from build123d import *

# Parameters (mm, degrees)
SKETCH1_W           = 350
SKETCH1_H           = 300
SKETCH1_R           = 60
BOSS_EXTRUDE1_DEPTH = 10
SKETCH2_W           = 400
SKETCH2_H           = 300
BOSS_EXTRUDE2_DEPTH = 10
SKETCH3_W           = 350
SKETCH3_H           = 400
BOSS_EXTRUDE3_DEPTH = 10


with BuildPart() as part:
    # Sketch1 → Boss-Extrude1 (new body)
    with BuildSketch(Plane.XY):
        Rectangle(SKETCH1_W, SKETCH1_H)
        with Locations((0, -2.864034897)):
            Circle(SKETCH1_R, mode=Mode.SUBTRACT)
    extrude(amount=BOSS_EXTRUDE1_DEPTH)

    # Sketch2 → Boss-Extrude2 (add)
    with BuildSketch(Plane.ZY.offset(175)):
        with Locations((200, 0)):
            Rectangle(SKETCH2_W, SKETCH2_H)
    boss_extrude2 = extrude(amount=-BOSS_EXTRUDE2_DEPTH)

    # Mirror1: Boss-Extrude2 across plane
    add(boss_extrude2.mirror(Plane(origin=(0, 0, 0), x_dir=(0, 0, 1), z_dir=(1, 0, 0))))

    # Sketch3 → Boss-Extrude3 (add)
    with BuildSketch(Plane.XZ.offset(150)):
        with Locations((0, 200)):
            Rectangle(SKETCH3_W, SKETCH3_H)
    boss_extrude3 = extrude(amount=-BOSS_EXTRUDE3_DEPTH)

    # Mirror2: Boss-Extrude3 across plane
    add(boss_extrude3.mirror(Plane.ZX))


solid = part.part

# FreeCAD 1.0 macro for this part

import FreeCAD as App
import Part
import Sketcher

V = App.Vector
Q = App.Units.Quantity

doc = App.newDocument("Part")
body = doc.addObject("PartDesign::Body", "Body")

sketch1 = body.newObject("Sketcher::SketchObject", "Sketch")
sketch1.AttachmentSupport = (doc.getObject("XY_Plane"), [""])
sketch1.MapMode = "FlatFace"
sketch1.addGeometry(Part.LineSegment(V(-175, 150, 0), V(-175, -150, 0)), False)
sketch1.addGeometry(Part.LineSegment(V(-175, -150, 0), V(175, -150, 0)), False)
sketch1.addGeometry(Part.LineSegment(V(175, -150, 0), V(175, 150, 0)), False)
sketch1.addGeometry(Part.LineSegment(V(175, 150, 0), V(-175, 150, 0)), False)
sketch1.addGeometry(Part.Circle(V(0, -2.864035, 0), V(0, 0, 1), 60), False)
sketch1.addConstraint(Sketcher.Constraint("Coincident", 0, 2, 1, 1))
sketch1.addConstraint(Sketcher.Constraint("Coincident", 1, 2, 2, 1))
sketch1.addConstraint(Sketcher.Constraint("Coincident", 2, 2, 3, 1))
sketch1.addConstraint(Sketcher.Constraint("Coincident", 3, 2, 0, 1))
sketch1.addConstraint(Sketcher.Constraint("Vertical", 0))
sketch1.addConstraint(Sketcher.Constraint("Horizontal", 1))
sketch1.addConstraint(Sketcher.Constraint("Vertical", 2))
sketch1.addConstraint(Sketcher.Constraint("Horizontal", 3))
sketch1.addConstraint(Sketcher.Constraint("Symmetric", 0, 2, 2, 2, -1, 1))
sketch1.addConstraint(Sketcher.Constraint("PointOnObject", 4, 3, -2))
sketch1.addConstraint(Sketcher.Constraint("Diameter", 4, Q("120 mm")))
sketch1.addConstraint(Sketcher.Constraint("DistanceX", 1, 1, 1, 2, Q("350 mm")))
sketch1.addConstraint(Sketcher.Constraint("DistanceY", 0, 2, 0, 1, Q("300 mm")))
sketch1.addConstraint(Sketcher.Constraint("DistanceY", 4, 3, -1, 1, Q("2.864035 mm")))
pad1 = body.newObject("PartDesign::Pad", "Pad")
pad1.Profile = sketch1
pad1.Length = 10

sketch2 = body.newObject("Sketcher::SketchObject", "Sketch001")
sketch2.AttachmentSupport = (doc.getObject("YZ_Plane"), [""])
sketch2.MapMode = "FlatFace"
sketch2.AttachmentOffset = App.Placement(V(0, 0, -175), App.Rotation())
sketch2.addGeometry(Part.LineSegment(V(150, 0, 0), V(-150, 0, 0)), False)
sketch2.addGeometry(Part.LineSegment(V(-150, 0, 0), V(-150, 400, 0)), False)
sketch2.addGeometry(Part.LineSegment(V(-150, 400, 0), V(150, 400, 0)), False)
sketch2.addGeometry(Part.LineSegment(V(150, 400, 0), V(150, 0, 0)), False)
sketch2.addConstraint(Sketcher.Constraint("Coincident", 0, 2, 1, 1))
sketch2.addConstraint(Sketcher.Constraint("Coincident", 1, 2, 2, 1))
sketch2.addConstraint(Sketcher.Constraint("Coincident", 2, 2, 3, 1))
sketch2.addConstraint(Sketcher.Constraint("Coincident", 3, 2, 0, 1))
sketch2.addConstraint(Sketcher.Constraint("Horizontal", 0))
sketch2.addConstraint(Sketcher.Constraint("Vertical", 1))
sketch2.addConstraint(Sketcher.Constraint("Horizontal", 2))
sketch2.addConstraint(Sketcher.Constraint("Vertical", 3))
sketch2.addConstraint(Sketcher.Constraint("Symmetric", 0, 2, 3, 2, -1, 1))
sketch2.addConstraint(Sketcher.Constraint("DistanceX", 0, 2, 0, 1, Q("300 mm")))
sketch2.addConstraint(Sketcher.Constraint("DistanceY", 1, 1, 1, 2, Q("400 mm")))
pad2 = body.newObject("PartDesign::Pad", "Pad001")
pad2.Profile = sketch2
pad2.Length = 10
doc.recompute()

mirrored = body.newObject("PartDesign::Mirrored", "Mirrored")
mirrored.Originals = [pad2]
mirrored.MirrorPlane = (doc.getObject("YZ_Plane"), [""])
body.Tip = mirrored

sketch3 = body.newObject("Sketcher::SketchObject", "Sketch002")
sketch3.AttachmentSupport = (doc.getObject("XZ_Plane"), [""])
sketch3.MapMode = "FlatFace"
sketch3.AttachmentOffset = App.Placement(V(0, 0, 150), App.Rotation())
sketch3.addGeometry(Part.LineSegment(V(-175, 400, 0), V(-175, 0, 0)), False)
sketch3.addGeometry(Part.LineSegment(V(-175, 0, 0), V(175, 0, 0)), False)
sketch3.addGeometry(Part.LineSegment(V(175, 0, 0), V(175, 400, 0)), False)
sketch3.addGeometry(Part.LineSegment(V(175, 400, 0), V(-175, 400, 0)), False)
sketch3.addConstraint(Sketcher.Constraint("Coincident", 0, 2, 1, 1))
sketch3.addConstraint(Sketcher.Constraint("Coincident", 1, 2, 2, 1))
sketch3.addConstraint(Sketcher.Constraint("Coincident", 2, 2, 3, 1))
sketch3.addConstraint(Sketcher.Constraint("Coincident", 3, 2, 0, 1))
sketch3.addConstraint(Sketcher.Constraint("Vertical", 0))
sketch3.addConstraint(Sketcher.Constraint("Horizontal", 1))
sketch3.addConstraint(Sketcher.Constraint("Vertical", 2))
sketch3.addConstraint(Sketcher.Constraint("Horizontal", 3))
sketch3.addConstraint(Sketcher.Constraint("Symmetric", 0, 2, 1, 2, -1, 1))
sketch3.addConstraint(Sketcher.Constraint("DistanceX", 1, 1, 1, 2, Q("350 mm")))
sketch3.addConstraint(Sketcher.Constraint("DistanceY", 0, 2, 0, 1, Q("400 mm")))
pad3 = body.newObject("PartDesign::Pad", "Pad002")
pad3.Profile = sketch3
pad3.Length = 10
pad3.Reversed = True
doc.recompute()

mirrored2 = body.newObject("PartDesign::Mirrored", "Mirrored001")
mirrored2.Originals = [pad3]
mirrored2.MirrorPlane = (doc.getObject("XZ_Plane"), [""])
body.Tip = mirrored2

doc.recompute()
